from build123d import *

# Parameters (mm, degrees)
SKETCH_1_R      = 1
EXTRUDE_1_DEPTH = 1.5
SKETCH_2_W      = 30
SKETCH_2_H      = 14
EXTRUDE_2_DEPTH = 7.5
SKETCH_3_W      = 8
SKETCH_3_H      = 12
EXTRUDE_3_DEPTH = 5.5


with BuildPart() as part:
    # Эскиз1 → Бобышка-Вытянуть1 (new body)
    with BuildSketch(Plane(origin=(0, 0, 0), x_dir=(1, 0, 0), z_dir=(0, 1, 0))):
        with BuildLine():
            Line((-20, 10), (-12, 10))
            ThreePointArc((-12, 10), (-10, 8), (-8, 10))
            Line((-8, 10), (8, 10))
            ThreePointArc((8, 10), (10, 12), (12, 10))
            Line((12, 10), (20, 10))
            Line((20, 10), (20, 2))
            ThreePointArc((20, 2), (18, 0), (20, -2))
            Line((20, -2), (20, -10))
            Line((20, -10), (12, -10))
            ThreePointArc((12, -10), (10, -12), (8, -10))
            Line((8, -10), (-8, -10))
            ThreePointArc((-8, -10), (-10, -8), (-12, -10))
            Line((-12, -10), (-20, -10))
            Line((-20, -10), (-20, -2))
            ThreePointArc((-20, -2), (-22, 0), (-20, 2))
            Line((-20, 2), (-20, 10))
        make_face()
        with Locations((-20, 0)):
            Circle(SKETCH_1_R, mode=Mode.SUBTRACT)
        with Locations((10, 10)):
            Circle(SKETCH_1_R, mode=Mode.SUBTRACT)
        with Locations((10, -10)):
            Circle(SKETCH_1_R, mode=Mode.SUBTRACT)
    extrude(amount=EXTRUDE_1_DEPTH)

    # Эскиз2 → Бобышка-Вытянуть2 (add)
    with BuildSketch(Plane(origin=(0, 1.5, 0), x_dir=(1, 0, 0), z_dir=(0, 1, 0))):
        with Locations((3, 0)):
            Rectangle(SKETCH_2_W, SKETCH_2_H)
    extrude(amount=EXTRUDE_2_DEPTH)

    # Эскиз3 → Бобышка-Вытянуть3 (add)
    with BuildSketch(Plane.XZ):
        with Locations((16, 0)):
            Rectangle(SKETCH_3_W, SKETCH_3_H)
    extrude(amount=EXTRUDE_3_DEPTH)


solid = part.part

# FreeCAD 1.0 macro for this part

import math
import FreeCAD as App
import Part
import Sketcher
Q = App.Units.Quantity

doc = App.newDocument("Part")
body = doc.addObject("PartDesign::Body", "Body")

sketch1 = body.newObject("Sketcher::SketchObject", "Sketch")
sketch1.AttachmentSupport = (doc.getObject("XZ_Plane"), [""])
sketch1.MapMode = "FlatFace"
sketch1.addGeometry(Part.LineSegment(App.Vector(-12, -10, 0), App.Vector(-20, -10, 0)), False)
sketch1.addGeometry(Part.LineSegment(App.Vector(-20, -10, 0), App.Vector(-20, -2, 0)), False)
sketch1.addGeometry(Part.ArcOfCircle(Part.Circle(App.Vector(-20, 0, 0), App.Vector(0, 0, 1), 2), math.radians(90), math.radians(270)), False)
sketch1.addGeometry(Part.LineSegment(App.Vector(-20, 2, 0), App.Vector(-20, 10, 0)), False)
sketch1.addGeometry(Part.LineSegment(App.Vector(-20, 10, 0), App.Vector(-12, 10, 0)), False)
sketch1.addGeometry(Part.ArcOfCircle(Part.Circle(App.Vector(-10, 10, 0), App.Vector(0, 0, 1), 2), math.radians(180), math.radians(360)), False)
sketch1.addGeometry(Part.LineSegment(App.Vector(-8, 10, 0), App.Vector(8, 10, 0)), False)
sketch1.addGeometry(Part.ArcOfCircle(Part.Circle(App.Vector(10, 10, 0), App.Vector(0, 0, 1), 2), math.radians(0), math.radians(180)), False)
sketch1.addGeometry(Part.LineSegment(App.Vector(12, 10, 0), App.Vector(20, 10, 0)), False)
sketch1.addGeometry(Part.LineSegment(App.Vector(20, 10, 0), App.Vector(20, 2, 0)), False)
sketch1.addGeometry(Part.ArcOfCircle(Part.Circle(App.Vector(20, 0, 0), App.Vector(0, 0, 1), 2), math.radians(90), math.radians(270)), False)
sketch1.addGeometry(Part.LineSegment(App.Vector(20, -2, 0), App.Vector(20, -10, 0)), False)
sketch1.addGeometry(Part.LineSegment(App.Vector(20, -10, 0), App.Vector(12, -10, 0)), False)
sketch1.addGeometry(Part.ArcOfCircle(Part.Circle(App.Vector(10, -10, 0), App.Vector(0, 0, 1), 2), math.radians(180), math.radians(360)), False)
sketch1.addGeometry(Part.LineSegment(App.Vector(8, -10, 0), App.Vector(-8, -10, 0)), False)
sketch1.addGeometry(Part.ArcOfCircle(Part.Circle(App.Vector(-10, -10, 0), App.Vector(0, 0, 1), 2), math.radians(0), math.radians(180)), False)
sketch1.addGeometry(Part.Circle(App.Vector(10, 10, 0), App.Vector(0, 0, 1), 1), False)
sketch1.addGeometry(Part.Circle(App.Vector(10, -10, 0), App.Vector(0, 0, 1), 1), False)
sketch1.addGeometry(Part.Circle(App.Vector(-20, 0, 0), App.Vector(0, 0, 1), 1), False)
sketch1.addConstraint(Sketcher.Constraint("Coincident", 0, 2, 1, 1))
sketch1.addConstraint(Sketcher.Constraint("Coincident", 1, 2, 2, 2))
sketch1.addConstraint(Sketcher.Constraint("Coincident", 2, 1, 3, 1))
sketch1.addConstraint(Sketcher.Constraint("Coincident", 3, 2, 4, 1))
sketch1.addConstraint(Sketcher.Constraint("Coincident", 4, 2, 5, 1))
sketch1.addConstraint(Sketcher.Constraint("Coincident", 5, 2, 6, 1))
sketch1.addConstraint(Sketcher.Constraint("Coincident", 6, 2, 7, 2))
sketch1.addConstraint(Sketcher.Constraint("Coincident", 7, 1, 8, 1))
sketch1.addConstraint(Sketcher.Constraint("Coincident", 8, 2, 9, 1))
sketch1.addConstraint(Sketcher.Constraint("Coincident", 9, 2, 10, 1))
sketch1.addConstraint(Sketcher.Constraint("Coincident", 10, 2, 11, 1))
sketch1.addConstraint(Sketcher.Constraint("Coincident", 11, 2, 12, 1))
sketch1.addConstraint(Sketcher.Constraint("Coincident", 12, 2, 13, 2))
sketch1.addConstraint(Sketcher.Constraint("Coincident", 13, 1, 14, 1))
sketch1.addConstraint(Sketcher.Constraint("Coincident", 14, 2, 15, 1))
sketch1.addConstraint(Sketcher.Constraint("Coincident", 15, 2, 0, 1))
sketch1.addConstraint(Sketcher.Constraint("Horizontal", 0))
sketch1.addConstraint(Sketcher.Constraint("Vertical", 1))
sketch1.addConstraint(Sketcher.Constraint("Vertical", 3))
sketch1.addConstraint(Sketcher.Constraint("Horizontal", 4))
sketch1.addConstraint(Sketcher.Constraint("Horizontal", 6))
sketch1.addConstraint(Sketcher.Constraint("Horizontal", 8))
sketch1.addConstraint(Sketcher.Constraint("Vertical", 9))
sketch1.addConstraint(Sketcher.Constraint("Vertical", 11))
sketch1.addConstraint(Sketcher.Constraint("Horizontal", 12))
sketch1.addConstraint(Sketcher.Constraint("Horizontal", 14))
sketch1.addConstraint(Sketcher.Constraint("Coincident", 16, 3, 7, 3))
sketch1.addConstraint(Sketcher.Constraint("Coincident", 17, 3, 13, 3))
sketch1.addConstraint(Sketcher.Constraint("Coincident", 18, 3, 2, 3))
sketch1.addConstraint(Sketcher.Constraint("Equal", 2, 5))
sketch1.addConstraint(Sketcher.Constraint("Equal", 5, 7))
sketch1.addConstraint(Sketcher.Constraint("Equal", 7, 10))
sketch1.addConstraint(Sketcher.Constraint("Equal", 10, 13))
sketch1.addConstraint(Sketcher.Constraint("Equal", 13, 15))
sketch1.addConstraint(Sketcher.Constraint("Equal", 16, 17))
sketch1.addConstraint(Sketcher.Constraint("Equal", 17, 18))
sketch1.addConstraint(Sketcher.Constraint("Symmetric", 2, 3, 10, 3, -1, 1))
sketch1.addConstraint(Sketcher.Constraint("Symmetric", 5, 3, 13, 3, -1, 1))
sketch1.addConstraint(Sketcher.Constraint("Symmetric", 7, 3, 15, 3, -1, 1))
sketch1.addConstraint(Sketcher.Constraint("Symmetric", 0, 2, 8, 2, -1, 1))
sketch1.addConstraint(Sketcher.Constraint("Symmetric", 3, 2, 11, 2, -1, 1))
sketch1.addConstraint(Sketcher.Constraint("Symmetric", 5, 3, 7, 3, -2))
sketch1.addConstraint(Sketcher.Constraint("Symmetric", 3, 2, 8, 2, -2))
sketch1.addConstraint(Sketcher.Constraint("PointOnObject", 2, 3, -1))
sketch1.addConstraint(Sketcher.Constraint("Horizontal", 17, 3, 0, 2))
sketch1.addConstraint(Sketcher.Constraint("Horizontal", 4, 2, 5, 2))
sketch1.addConstraint(Sketcher.Constraint("Horizontal", 12, 2, 13, 1))
sketch1.addConstraint(Sketcher.Constraint("Vertical", 18, 3, 0, 2))
sketch1.addConstraint(Sketcher.Constraint("Equal", 12, 1))
sketch1.addConstraint(Sketcher.Constraint("Diameter", 16, Q("2 mm")))
sketch1.addConstraint(Sketcher.Constraint("Radius", 2, Q("2 mm")))
sketch1.addConstraint(Sketcher.Constraint("DistanceX", 0, 2, 0, 1, Q("8 mm")))
sketch1.addConstraint(Sketcher.Constraint("DistanceX", 6, 1, 6, 2, Q("16 mm")))
pad1 = body.newObject("PartDesign::Pad", "Pad")
pad1.Profile = sketch1
pad1.Length = 1.5
pad1.Reversed = True

sketch2 = body.newObject("Sketcher::SketchObject", "Sketch001")
sketch2.AttachmentSupport = (doc.getObject("XZ_Plane"), [""])
sketch2.MapMode = "FlatFace"
sketch2.AttachmentOffset = App.Placement(App.Vector(0, 0, -1.5), App.Rotation())
sketch2.addGeometry(Part.LineSegment(App.Vector(-12, -7, 0), App.Vector(-12, 7, 0)), False)
sketch2.addGeometry(Part.LineSegment(App.Vector(-12, 7, 0), App.Vector(18, 7, 0)), False)
sketch2.addGeometry(Part.LineSegment(App.Vector(18, 7, 0), App.Vector(18, -7, 0)), False)
sketch2.addGeometry(Part.LineSegment(App.Vector(18, -7, 0), App.Vector(-12, -7, 0)), False)
sketch2.addConstraint(Sketcher.Constraint("Coincident", 0, 2, 1, 1))
sketch2.addConstraint(Sketcher.Constraint("Coincident", 1, 2, 2, 1))
sketch2.addConstraint(Sketcher.Constraint("Coincident", 2, 2, 3, 1))
sketch2.addConstraint(Sketcher.Constraint("Coincident", 3, 2, 0, 1))
sketch2.addConstraint(Sketcher.Constraint("Vertical", 0))
sketch2.addConstraint(Sketcher.Constraint("Horizontal", 1))
sketch2.addConstraint(Sketcher.Constraint("Vertical", 2))
sketch2.addConstraint(Sketcher.Constraint("Horizontal", 3))
sketch2.addConstraint(Sketcher.Constraint("DistanceX", 1, 1, 1, 2, Q("30 mm")))
sketch2.addConstraint(Sketcher.Constraint("DistanceY", 0, 1, 0, 2, Q("14 mm")))
sketch2.addConstraint(Sketcher.Constraint("DistanceX", 0, 2, -1, 1, Q("12 mm")))
sketch2.addConstraint(Sketcher.Constraint("DistanceY", -1, 1, 0, 2, Q("7 mm")))
pad2 = body.newObject("PartDesign::Pad", "Pad001")
pad2.Profile = sketch2
pad2.Length = 7.5
pad2.Reversed = True

sketch3 = body.newObject("Sketcher::SketchObject", "Sketch002")
sketch3.AttachmentSupport = (doc.getObject("XZ_Plane"), [""])
sketch3.MapMode = "FlatFace"
sketch3.addGeometry(Part.LineSegment(App.Vector(12, 6, 0), App.Vector(12, -6, 0)), False)
sketch3.addGeometry(Part.LineSegment(App.Vector(12, -6, 0), App.Vector(20, -6, 0)), False)
sketch3.addGeometry(Part.LineSegment(App.Vector(20, -6, 0), App.Vector(20, 6, 0)), False)
sketch3.addGeometry(Part.LineSegment(App.Vector(20, 6, 0), App.Vector(12, 6, 0)), False)
sketch3.addConstraint(Sketcher.Constraint("Coincident", 0, 2, 1, 1))
sketch3.addConstraint(Sketcher.Constraint("Coincident", 1, 2, 2, 1))
sketch3.addConstraint(Sketcher.Constraint("Coincident", 2, 2, 3, 1))
sketch3.addConstraint(Sketcher.Constraint("Coincident", 3, 2, 0, 1))
sketch3.addConstraint(Sketcher.Constraint("Vertical", 0))
sketch3.addConstraint(Sketcher.Constraint("Horizontal", 1))
sketch3.addConstraint(Sketcher.Constraint("Vertical", 2))
sketch3.addConstraint(Sketcher.Constraint("Horizontal", 3))
sketch3.addConstraint(Sketcher.Constraint("DistanceX", 1, 1, 1, 2, Q("8 mm")))
sketch3.addConstraint(Sketcher.Constraint("DistanceY", 0, 2, 0, 1, Q("12 mm")))
sketch3.addConstraint(Sketcher.Constraint("DistanceX", -1, 1, 0, 2, Q("12 mm")))
sketch3.addConstraint(Sketcher.Constraint("DistanceY", 0, 2, -1, 1, Q("6 mm")))
pad3 = body.newObject("PartDesign::Pad", "Pad002")
pad3.Profile = sketch3
pad3.Length = 5.5

doc.recompute()
